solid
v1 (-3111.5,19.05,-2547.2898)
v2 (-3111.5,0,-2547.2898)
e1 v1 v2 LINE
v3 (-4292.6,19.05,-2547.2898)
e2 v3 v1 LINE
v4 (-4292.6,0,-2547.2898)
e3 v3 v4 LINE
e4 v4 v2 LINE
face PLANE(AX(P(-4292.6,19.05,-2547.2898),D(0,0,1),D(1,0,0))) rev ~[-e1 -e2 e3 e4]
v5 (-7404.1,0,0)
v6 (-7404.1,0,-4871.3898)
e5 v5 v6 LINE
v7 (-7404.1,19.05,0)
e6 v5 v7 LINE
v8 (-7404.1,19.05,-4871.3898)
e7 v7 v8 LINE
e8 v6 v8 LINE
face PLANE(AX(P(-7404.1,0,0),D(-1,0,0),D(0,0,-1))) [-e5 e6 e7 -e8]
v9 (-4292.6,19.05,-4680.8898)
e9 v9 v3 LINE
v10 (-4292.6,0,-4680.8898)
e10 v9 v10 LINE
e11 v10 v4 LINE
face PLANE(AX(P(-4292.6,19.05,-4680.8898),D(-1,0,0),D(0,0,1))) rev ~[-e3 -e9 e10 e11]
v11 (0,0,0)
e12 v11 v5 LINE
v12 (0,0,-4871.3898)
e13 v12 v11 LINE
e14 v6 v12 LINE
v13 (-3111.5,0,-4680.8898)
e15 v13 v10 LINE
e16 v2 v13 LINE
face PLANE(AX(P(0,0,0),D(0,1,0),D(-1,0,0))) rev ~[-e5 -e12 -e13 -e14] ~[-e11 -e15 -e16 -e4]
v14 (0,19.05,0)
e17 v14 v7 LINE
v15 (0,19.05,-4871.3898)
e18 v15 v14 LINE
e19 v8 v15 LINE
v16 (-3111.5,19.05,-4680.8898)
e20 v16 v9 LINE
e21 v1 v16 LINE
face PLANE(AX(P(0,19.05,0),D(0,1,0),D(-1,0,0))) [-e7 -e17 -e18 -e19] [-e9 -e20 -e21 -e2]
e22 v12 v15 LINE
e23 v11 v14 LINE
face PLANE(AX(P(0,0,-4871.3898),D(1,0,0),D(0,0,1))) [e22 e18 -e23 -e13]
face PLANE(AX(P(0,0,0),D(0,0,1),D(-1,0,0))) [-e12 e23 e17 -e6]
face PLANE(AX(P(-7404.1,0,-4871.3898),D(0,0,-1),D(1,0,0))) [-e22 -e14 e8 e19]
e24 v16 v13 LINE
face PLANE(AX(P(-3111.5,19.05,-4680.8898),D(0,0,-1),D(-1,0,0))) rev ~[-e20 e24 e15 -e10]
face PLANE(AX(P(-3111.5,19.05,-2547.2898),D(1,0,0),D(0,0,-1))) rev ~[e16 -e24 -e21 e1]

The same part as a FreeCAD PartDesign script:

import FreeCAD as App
import Part
import Sketcher
Q = App.Units.Quantity

doc = App.newDocument("Part")
body = doc.addObject("PartDesign::Body", "Body")

# Sketch on XZ plane
sketch1 = body.newObject("Sketcher::SketchObject", "Sketch")
sketch1.AttachmentSupport = (doc.getObject("XZ_Plane"), [""])
sketch1.MapMode = "FlatFace"
sketch1.addGeometry([
    Part.LineSegment(App.Vector(-7404, 0, 0), App.Vector(0, 0, 0)),
    Part.LineSegment(App.Vector(0, 0, 0), App.Vector(0, -4871, 0)),
    Part.LineSegment(App.Vector(0, -4871, 0), App.Vector(-7404, -4871, 0)),
    Part.LineSegment(App.Vector(-7404, -4871, 0), App.Vector(-7404, 0, 0)),
], False)
sketch1.addConstraint([
    Sketcher.Constraint("Coincident", 0, 2, 1, 1),
    Sketcher.Constraint("Coincident", 1, 2, 2, 1),
    Sketcher.Constraint("Coincident", 2, 2, 3, 1),
    Sketcher.Constraint("Coincident", 3, 2, 0, 1),
    Sketcher.Constraint("Horizontal", 0),
    Sketcher.Constraint("Vertical", 1),
    Sketcher.Constraint("Horizontal", 2),
    Sketcher.Constraint("Vertical", 3),
    Sketcher.Constraint("Coincident", 0, 2, -1, 1),
    Sketcher.Constraint("DistanceX", 0, 1, 0, 2, Q("291.5 in")),
    Sketcher.Constraint("DistanceY", 1, 2, 1, 1, Q("191.787 in")),
])
pad1 = body.newObject("PartDesign::Pad", "Pad")
pad1.Profile = sketch1
pad1.Length = Q("0.75 in")
pad1.Reversed = True

# Sketch on XZ plane
sketch2 = body.newObject("Sketcher::SketchObject", "Sketch001")
sketch2.AttachmentSupport = (doc.getObject("XZ_Plane"), [""])
sketch2.MapMode = "FlatFace"
sketch2.AttachmentOffset = App.Placement(App.Vector(0, 0, -0.75 * 25.4), App.Rotation())
sketch2.addGeometry([
    Part.LineSegment(App.Vector(-3112, -2547, 0), App.Vector(-3112, -4681, 0)),
    Part.LineSegment(App.Vector(-3112, -4681, 0), App.Vector(-4293, -4681, 0)),
    Part.LineSegment(App.Vector(-4293, -4681, 0), App.Vector(-4293, -2547, 0)),
    Part.LineSegment(App.Vector(-4293, -2547, 0), App.Vector(-3112, -2547, 0)),
], False)
sketch2.addConstraint([
    Sketcher.Constraint("Coincident", 0, 2, 1, 1),
    Sketcher.Constraint("Coincident", 1, 2, 2, 1),
    Sketcher.Constraint("Coincident", 2, 2, 3, 1),
    Sketcher.Constraint("Coincident", 3, 2, 0, 1),
    Sketcher.Constraint("Vertical", 0),
    Sketcher.Constraint("Horizontal", 1),
    Sketcher.Constraint("Vertical", 2),
    Sketcher.Constraint("Horizontal", 3),
    Sketcher.Constraint("DistanceY", 0, 2, 0, 1, Q("84 in")),
    Sketcher.Constraint("DistanceX", 1, 2, 1, 1, Q("46.5 in")),
    Sketcher.Constraint("DistanceX", 0, 2, -1, 1, Q("122.5 in")),
    Sketcher.Constraint("DistanceY", 0, 2, -1, 1, Q("184.287 in")),
])
pocket1 = body.newObject("PartDesign::Pocket", "Pocket")
pocket1.Profile = sketch2
pocket1.Length = Q("0.75 in")
pocket1.Reversed = True

doc.recompute()
